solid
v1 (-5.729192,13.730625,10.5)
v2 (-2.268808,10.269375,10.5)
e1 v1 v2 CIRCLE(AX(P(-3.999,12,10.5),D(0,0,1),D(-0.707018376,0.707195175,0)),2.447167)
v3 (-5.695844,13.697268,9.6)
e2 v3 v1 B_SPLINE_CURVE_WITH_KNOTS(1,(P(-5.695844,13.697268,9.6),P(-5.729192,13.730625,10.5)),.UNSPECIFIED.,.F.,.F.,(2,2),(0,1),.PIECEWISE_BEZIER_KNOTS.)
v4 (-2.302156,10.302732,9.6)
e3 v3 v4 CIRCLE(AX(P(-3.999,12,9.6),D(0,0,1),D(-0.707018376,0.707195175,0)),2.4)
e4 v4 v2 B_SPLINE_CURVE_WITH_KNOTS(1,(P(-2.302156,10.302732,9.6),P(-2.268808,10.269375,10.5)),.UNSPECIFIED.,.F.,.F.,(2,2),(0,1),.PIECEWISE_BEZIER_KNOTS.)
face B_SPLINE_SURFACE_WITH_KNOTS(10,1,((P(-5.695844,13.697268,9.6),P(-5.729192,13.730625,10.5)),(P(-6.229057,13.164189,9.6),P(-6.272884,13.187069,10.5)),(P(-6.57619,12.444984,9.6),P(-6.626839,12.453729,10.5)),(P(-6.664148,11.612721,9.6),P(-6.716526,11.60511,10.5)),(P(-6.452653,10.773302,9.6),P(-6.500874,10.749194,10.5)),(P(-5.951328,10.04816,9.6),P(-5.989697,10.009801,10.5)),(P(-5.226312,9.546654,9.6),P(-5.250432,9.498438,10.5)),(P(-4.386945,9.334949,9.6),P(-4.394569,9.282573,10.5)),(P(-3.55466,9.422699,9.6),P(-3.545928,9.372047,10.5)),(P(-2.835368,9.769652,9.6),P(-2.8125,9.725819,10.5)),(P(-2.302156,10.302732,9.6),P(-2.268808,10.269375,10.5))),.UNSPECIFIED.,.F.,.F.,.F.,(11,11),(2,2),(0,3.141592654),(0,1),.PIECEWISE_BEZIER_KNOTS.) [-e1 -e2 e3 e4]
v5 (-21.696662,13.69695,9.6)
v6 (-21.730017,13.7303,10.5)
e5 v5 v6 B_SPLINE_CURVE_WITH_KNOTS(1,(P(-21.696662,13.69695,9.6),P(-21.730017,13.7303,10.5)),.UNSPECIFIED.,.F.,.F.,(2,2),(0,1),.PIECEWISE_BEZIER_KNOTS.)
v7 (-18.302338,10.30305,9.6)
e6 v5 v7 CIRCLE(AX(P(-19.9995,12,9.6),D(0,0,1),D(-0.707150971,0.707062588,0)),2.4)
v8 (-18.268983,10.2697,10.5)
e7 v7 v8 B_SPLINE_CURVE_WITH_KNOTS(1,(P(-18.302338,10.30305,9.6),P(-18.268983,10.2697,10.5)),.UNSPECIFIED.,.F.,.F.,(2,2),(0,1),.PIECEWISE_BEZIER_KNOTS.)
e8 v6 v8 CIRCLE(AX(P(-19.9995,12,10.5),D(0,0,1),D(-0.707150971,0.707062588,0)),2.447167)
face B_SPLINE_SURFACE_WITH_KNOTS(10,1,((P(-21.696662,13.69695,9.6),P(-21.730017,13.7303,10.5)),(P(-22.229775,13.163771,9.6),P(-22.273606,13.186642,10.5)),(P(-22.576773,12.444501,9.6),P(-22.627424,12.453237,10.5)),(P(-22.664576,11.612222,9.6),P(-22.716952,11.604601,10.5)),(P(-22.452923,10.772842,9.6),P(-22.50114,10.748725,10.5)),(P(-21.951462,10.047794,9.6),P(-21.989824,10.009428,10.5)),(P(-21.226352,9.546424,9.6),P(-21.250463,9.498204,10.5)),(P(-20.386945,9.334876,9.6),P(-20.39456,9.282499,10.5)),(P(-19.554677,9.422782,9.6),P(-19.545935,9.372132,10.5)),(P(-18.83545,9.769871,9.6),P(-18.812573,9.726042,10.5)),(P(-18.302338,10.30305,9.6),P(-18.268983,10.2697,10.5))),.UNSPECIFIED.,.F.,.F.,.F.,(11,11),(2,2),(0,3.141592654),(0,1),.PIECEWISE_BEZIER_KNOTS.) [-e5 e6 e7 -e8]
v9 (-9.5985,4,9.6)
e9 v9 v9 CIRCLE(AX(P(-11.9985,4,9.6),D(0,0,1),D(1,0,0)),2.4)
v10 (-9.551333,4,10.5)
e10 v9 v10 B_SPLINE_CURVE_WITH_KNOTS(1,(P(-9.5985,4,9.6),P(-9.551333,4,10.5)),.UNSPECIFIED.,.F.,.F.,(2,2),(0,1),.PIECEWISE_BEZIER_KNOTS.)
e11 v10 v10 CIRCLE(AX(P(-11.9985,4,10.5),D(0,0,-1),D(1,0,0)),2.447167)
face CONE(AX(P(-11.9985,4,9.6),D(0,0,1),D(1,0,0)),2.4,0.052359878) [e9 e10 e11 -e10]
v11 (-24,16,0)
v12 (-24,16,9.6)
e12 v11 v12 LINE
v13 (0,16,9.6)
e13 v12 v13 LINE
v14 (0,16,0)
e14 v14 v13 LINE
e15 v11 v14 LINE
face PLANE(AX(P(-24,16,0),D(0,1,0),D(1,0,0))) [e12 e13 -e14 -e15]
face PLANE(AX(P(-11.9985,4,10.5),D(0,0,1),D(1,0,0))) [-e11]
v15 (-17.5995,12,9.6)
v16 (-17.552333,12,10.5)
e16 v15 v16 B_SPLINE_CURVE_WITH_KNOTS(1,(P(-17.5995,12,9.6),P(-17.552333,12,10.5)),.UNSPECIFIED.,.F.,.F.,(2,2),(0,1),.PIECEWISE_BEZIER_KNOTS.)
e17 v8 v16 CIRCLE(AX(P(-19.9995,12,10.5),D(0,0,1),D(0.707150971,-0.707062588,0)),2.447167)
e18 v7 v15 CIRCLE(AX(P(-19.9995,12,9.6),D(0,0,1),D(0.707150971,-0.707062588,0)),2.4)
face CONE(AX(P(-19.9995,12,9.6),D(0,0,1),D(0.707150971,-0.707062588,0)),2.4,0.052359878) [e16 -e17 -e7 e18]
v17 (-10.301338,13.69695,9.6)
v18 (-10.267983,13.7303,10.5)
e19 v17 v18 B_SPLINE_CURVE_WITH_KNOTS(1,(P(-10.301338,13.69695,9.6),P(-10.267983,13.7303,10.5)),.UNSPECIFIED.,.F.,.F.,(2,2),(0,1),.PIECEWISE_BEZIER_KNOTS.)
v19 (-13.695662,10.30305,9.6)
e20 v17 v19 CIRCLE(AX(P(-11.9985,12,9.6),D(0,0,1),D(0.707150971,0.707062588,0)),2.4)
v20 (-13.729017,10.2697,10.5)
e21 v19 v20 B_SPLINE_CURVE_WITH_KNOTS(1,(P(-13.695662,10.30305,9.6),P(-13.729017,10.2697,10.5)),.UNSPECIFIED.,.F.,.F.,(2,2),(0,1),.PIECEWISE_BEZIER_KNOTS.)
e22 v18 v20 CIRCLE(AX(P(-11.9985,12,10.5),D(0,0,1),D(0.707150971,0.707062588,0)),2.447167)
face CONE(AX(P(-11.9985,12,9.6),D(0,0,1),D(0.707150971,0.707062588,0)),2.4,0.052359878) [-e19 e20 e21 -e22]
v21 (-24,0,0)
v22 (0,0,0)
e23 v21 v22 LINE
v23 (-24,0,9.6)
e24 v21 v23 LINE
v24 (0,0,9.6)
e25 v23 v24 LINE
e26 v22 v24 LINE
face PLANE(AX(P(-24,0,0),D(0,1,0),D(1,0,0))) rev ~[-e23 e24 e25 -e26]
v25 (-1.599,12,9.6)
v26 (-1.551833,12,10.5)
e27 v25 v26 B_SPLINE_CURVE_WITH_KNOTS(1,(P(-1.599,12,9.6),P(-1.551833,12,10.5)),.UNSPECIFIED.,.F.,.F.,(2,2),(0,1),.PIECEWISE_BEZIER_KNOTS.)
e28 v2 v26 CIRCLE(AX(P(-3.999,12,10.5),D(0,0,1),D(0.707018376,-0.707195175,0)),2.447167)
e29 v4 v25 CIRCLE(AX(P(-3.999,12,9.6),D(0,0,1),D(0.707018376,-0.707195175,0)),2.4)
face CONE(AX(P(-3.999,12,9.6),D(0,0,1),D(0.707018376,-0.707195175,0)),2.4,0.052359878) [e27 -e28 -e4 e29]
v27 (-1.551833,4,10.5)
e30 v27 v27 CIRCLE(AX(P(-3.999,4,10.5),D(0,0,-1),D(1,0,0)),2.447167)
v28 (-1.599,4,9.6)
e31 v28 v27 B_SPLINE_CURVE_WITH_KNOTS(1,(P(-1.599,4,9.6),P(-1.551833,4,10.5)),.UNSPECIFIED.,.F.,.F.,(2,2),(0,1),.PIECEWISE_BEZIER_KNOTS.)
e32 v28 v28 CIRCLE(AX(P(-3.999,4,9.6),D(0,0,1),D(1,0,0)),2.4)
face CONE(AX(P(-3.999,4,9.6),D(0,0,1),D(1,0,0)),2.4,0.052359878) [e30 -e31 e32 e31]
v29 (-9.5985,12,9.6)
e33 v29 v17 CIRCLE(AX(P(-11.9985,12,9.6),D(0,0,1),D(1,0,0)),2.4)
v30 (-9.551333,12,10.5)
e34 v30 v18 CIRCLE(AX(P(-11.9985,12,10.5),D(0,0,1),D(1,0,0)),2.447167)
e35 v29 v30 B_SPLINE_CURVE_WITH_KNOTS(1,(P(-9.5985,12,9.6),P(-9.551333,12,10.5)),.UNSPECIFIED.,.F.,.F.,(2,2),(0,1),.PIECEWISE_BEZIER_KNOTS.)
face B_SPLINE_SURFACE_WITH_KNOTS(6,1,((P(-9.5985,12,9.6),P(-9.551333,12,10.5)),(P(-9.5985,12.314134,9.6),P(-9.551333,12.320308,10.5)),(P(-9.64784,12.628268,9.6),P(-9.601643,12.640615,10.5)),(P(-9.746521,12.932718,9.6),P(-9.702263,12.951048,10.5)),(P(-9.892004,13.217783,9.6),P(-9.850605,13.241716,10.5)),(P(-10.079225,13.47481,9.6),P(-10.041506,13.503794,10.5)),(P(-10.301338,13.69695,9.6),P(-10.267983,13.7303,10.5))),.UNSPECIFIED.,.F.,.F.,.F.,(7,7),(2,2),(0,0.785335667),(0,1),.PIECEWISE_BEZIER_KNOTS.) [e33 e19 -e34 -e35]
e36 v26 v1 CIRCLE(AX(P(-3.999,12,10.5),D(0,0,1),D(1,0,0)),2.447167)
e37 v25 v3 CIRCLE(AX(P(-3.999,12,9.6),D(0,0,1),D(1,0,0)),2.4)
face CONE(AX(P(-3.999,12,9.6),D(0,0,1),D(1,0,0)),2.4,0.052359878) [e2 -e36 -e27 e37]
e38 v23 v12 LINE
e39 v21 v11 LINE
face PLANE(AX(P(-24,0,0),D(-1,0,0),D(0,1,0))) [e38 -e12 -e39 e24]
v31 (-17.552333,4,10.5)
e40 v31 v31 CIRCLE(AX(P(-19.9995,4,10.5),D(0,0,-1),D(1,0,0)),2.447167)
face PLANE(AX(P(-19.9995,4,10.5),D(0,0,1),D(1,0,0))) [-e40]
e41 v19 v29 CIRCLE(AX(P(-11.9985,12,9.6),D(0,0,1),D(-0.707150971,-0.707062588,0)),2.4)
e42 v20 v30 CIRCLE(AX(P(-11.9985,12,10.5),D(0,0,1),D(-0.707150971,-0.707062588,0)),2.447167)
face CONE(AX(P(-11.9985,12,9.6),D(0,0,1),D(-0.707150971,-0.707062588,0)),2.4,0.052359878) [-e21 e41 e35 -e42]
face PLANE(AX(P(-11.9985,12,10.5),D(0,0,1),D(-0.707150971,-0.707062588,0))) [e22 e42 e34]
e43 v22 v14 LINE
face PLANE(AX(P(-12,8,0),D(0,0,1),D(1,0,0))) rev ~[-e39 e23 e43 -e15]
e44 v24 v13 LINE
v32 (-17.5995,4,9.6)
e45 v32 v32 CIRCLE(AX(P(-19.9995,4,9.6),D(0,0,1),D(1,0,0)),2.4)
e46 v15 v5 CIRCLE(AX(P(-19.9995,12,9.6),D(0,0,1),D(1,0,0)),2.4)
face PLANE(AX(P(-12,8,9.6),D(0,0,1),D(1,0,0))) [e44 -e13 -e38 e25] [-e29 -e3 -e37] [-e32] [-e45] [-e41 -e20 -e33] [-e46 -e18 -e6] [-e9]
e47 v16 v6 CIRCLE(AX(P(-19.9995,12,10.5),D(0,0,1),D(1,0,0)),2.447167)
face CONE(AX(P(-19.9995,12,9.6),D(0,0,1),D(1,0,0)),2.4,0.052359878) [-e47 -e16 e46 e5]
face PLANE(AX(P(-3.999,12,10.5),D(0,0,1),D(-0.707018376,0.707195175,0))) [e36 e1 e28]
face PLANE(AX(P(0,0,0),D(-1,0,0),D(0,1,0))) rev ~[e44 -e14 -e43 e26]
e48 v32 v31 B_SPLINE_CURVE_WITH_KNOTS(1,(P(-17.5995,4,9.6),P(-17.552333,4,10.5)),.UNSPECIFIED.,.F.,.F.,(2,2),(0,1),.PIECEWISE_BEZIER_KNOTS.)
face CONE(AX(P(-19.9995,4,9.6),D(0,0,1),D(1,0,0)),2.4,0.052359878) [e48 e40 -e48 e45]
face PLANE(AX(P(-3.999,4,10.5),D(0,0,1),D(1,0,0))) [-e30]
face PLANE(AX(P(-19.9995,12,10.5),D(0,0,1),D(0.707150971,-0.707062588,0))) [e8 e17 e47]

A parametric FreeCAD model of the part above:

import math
import FreeCAD as App
import Part
import Sketcher

doc = App.newDocument("Part")
body = doc.addObject("PartDesign::Body", "Body")

sketch1 = body.newObject("Sketcher::SketchObject", "Sketch")
sketch1.AttachmentSupport = (doc.getObject("XY_Plane"), [""])
sketch1.MapMode = "FlatFace"
sketch1.addGeometry([
    Part.LineSegment(App.Vector(-24, 16, 0), App.Vector(-24, 0, 0)),
    Part.LineSegment(App.Vector(-24, 0, 0), App.Vector(0, 0, 0)),
    Part.LineSegment(App.Vector(0, 0, 0), App.Vector(0, 16, 0)),
    Part.LineSegment(App.Vector(0, 16, 0), App.Vector(-24, 16, 0)),
], False)
sketch1.addConstraint([
    Sketcher.Constraint("Coincident", 0, 2, 1, 1),
    Sketcher.Constraint("Coincident", 1, 2, 2, 1),
    Sketcher.Constraint("Coincident", 2, 2, 3, 1),
    Sketcher.Constraint("Coincident", 3, 2, 0, 1),
    Sketcher.Constraint("Vertical", 0),
    Sketcher.Constraint("Horizontal", 1),
    Sketcher.Constraint("Vertical", 2),
    Sketcher.Constraint("Horizontal", 3),
    Sketcher.Constraint("Coincident", 1, 2, -1, 1),
    Sketcher.Constraint("DistanceX", 1, 1, 1, 2, 24.0),
    Sketcher.Constraint("DistanceY", 0, 2, 0, 1, 16.0),
])
pad1 = body.newObject("PartDesign::Pad", "Pad")
pad1.Profile = sketch1
pad1.Length = 9.6

sketch2 = body.newObject("Sketcher::SketchObject", "Sketch001")
sketch2.AttachmentSupport = (doc.getObject("XY_Plane"), [""])
sketch2.MapMode = "FlatFace"
sketch2.AttachmentOffset = App.Placement(App.Vector(0, 0, 9.6), App.Rotation())
sketch2.addGeometry([
    Part.Circle(App.Vector(-20, 4, 0), App.Vector(0, 0, 1), 2.4),
    Part.Circle(App.Vector(-12, 4, 0), App.Vector(0, 0, 1), 2.4),
    Part.Circle(App.Vector(-4, 4, 0), App.Vector(0, 0, 1), 2.4),
    Part.ArcOfCircle(Part.Circle(App.Vector(-4, 12, 0), App.Vector(0, 0, 1), 2.4), math.radians(135), math.radians(315)),
    Part.ArcOfCircle(Part.Circle(App.Vector(-4, 12, 0), App.Vector(0, 0, 1), 2.4), math.radians(-45), math.radians(0)),
    Part.ArcOfCircle(Part.Circle(App.Vector(-4, 12, 0), App.Vector(0, 0, 1), 2.4), math.radians(0), math.radians(135)),
    Part.ArcOfCircle(Part.Circle(App.Vector(-20, 12, 0), App.Vector(0, 0, 1), 2.4), math.radians(-45), math.radians(0)),
    Part.ArcOfCircle(Part.Circle(App.Vector(-20, 12, 0), App.Vector(0, 0, 1), 2.4), math.radians(0), math.radians(135)),
    Part.ArcOfCircle(Part.Circle(App.Vector(-20, 12, 0), App.Vector(0, 0, 1), 2.4), math.radians(135), math.radians(315)),
    Part.ArcOfCircle(Part.Circle(App.Vector(-12, 12, 0), App.Vector(0, 0, 1), 2.4), math.radians(-135), math.radians(0)),
    Part.ArcOfCircle(Part.Circle(App.Vector(-12, 12, 0), App.Vector(0, 0, 1), 2.4), math.radians(0), math.radians(45)),
    Part.ArcOfCircle(Part.Circle(App.Vector(-12, 12, 0), App.Vector(0, 0, 1), 2.4), math.radians(45), math.radians(225)),
], False)
sketch2.addConstraint([
    Sketcher.Constraint("Tangent", 3, 2, 4, 1),
    Sketcher.Constraint("Tangent", 4, 2, 5, 1),
    Sketcher.Constraint("Tangent", 5, 2, 3, 1),
    Sketcher.Constraint("Tangent", 6, 2, 7, 1),
    Sketcher.Constraint("Tangent", 7, 2, 8, 1),
    Sketcher.Constraint("Tangent", 8, 2, 6, 1),
    Sketcher.Constraint("Tangent", 9, 2, 10, 1),
    Sketcher.Constraint("Tangent", 10, 2, 11, 1),
    Sketcher.Constraint("Tangent", 11, 2, 9, 1),
    Sketcher.Constraint("Equal", 0, 1),
    Sketcher.Constraint("Equal", 1, 2),
    Sketcher.Constraint("Equal", 2, 3),
    Sketcher.Constraint("Equal", 5, 6),
    Sketcher.Constraint("Equal", 8, 9),
    Sketcher.Constraint("Horizontal", 0, 3, 1, 3),
    Sketcher.Constraint("Horizontal", 1, 3, 2, 3),
    Sketcher.Constraint("Horizontal", 5, 3, 6, 3),
    Sketcher.Constraint("Horizontal", 8, 3, 9, 3),
    Sketcher.Constraint("Horizontal", 11, 3, 4, 2),
    Sketcher.Constraint("Horizontal", 4, 2, 6, 2),
    Sketcher.Constraint("Horizontal", 6, 2, 9, 2),
    Sketcher.Constraint("Horizontal", 7, 2, 10, 2),
    Sketcher.Constraint("Horizontal", 8, 2, 11, 2),
    Sketcher.Constraint("Vertical", 2, 3, 3, 3),
    Sketcher.Constraint("Vertical", 0, 3, 6, 3),
    Sketcher.Constraint("Vertical", 1, 3, 9, 3),
    Sketcher.Constraint("Diameter", 0, 4.8),
    Sketcher.Constraint("DistanceY", -1, 1, 0, 3, 4.0),
    Sketcher.Constraint("DistanceY", -1, 1, 3, 3, 12.0),
    Sketcher.Constraint("DistanceX", 2, 3, -1, 1, 3.999),
    Sketcher.Constraint("DistanceX", 0, 3, 1, 3, 8.001),
    Sketcher.Constraint("DistanceX", 0, 3, -1, 1, 19.9995),
    Sketcher.Constraint("DistanceY", 8, 2, 7, 2, 3.3939),
    Sketcher.Constraint("DistanceY", -1, 1, 3, 2, 10.302732),
    Sketcher.Constraint("DistanceY", -1, 1, 5, 2, 13.697268),
    Sketcher.Constraint("DistanceY", -1, 1, 7, 2, 13.69695),
])
pad2 = body.newObject("PartDesign::Pad", "Pad001")
pad2.Profile = sketch2
pad2.Length = 1.8
pad2.Midplane = True
pad2.TaperAngle = 3

doc.recompute()
